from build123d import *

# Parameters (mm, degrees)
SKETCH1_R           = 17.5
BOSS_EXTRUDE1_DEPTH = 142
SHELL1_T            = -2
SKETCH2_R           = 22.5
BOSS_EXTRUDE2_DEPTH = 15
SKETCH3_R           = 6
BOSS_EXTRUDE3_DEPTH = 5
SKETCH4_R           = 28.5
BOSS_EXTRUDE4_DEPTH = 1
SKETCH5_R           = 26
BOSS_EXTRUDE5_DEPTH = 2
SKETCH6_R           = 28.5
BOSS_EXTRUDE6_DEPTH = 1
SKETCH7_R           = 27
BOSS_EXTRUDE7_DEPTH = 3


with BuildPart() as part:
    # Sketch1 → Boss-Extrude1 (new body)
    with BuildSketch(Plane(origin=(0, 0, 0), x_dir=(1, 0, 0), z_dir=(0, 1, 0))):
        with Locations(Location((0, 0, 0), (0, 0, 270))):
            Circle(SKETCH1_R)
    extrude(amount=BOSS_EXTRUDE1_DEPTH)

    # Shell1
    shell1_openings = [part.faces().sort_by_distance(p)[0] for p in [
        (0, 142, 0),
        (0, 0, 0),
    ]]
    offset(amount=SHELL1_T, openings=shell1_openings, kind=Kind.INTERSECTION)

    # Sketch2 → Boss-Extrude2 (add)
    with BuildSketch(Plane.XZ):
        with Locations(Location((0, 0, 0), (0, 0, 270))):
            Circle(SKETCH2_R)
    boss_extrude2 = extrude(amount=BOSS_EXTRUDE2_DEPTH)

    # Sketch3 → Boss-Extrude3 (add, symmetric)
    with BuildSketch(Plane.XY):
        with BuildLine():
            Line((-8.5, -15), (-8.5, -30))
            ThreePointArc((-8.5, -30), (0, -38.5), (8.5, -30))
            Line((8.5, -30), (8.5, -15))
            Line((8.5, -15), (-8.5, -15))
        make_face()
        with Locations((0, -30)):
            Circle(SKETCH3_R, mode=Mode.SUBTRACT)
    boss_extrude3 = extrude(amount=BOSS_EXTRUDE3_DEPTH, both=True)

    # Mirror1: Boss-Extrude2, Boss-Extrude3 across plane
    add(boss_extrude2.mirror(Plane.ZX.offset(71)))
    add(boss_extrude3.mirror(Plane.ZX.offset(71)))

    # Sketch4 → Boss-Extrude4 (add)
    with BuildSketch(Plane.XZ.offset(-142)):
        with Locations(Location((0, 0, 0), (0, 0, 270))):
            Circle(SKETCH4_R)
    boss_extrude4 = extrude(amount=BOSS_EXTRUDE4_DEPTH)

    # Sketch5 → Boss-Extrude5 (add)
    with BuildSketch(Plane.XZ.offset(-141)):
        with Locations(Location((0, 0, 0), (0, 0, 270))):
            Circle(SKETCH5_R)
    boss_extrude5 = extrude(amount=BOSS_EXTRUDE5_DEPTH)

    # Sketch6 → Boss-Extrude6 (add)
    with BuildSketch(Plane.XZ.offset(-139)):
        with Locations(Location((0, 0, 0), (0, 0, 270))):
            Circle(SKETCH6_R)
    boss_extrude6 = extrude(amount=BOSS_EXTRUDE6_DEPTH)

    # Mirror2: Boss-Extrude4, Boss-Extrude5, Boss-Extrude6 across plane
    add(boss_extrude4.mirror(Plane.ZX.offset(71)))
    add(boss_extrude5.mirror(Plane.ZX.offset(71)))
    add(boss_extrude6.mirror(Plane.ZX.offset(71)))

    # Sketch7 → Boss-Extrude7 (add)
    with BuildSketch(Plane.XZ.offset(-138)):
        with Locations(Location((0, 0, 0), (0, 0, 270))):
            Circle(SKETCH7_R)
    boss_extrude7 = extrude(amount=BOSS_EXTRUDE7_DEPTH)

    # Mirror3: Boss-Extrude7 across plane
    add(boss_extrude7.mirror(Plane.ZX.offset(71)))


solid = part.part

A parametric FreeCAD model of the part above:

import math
import FreeCAD as App
import Part
import Sketcher
from FreeCAD import Vector


def faces_at(feature, points):
    """Names of the faces that lie closest to the given points."""
    faces = feature.Shape.Faces
    near = lambda p: min(range(len(faces)), key=lambda i: faces[i].distToShape(Part.Vertex(*p))[0])
    return sorted({f"Face{near(p) + 1}" for p in points})

doc = App.newDocument("Part")
body = doc.addObject("PartDesign::Body", "Body")

# Sketch on XZ plane
sketch1 = doc.addObject("Sketcher::SketchObject", "Sketch")
body.addObject(sketch1)
sketch1.AttachmentSupport = (doc.XZ_Plane, [""])
sketch1.MapMode = "FlatFace"
sketch1.addGeometry(Part.Circle(Vector(0, 0, 0), Vector(0, 0, 1), 18), False)
sketch1.addConstraint([
    Sketcher.Constraint("Coincident", 0, 3, -1, 1),
    Sketcher.Constraint("Diameter", 0, 35.0),
])
pad1 = doc.addObject("PartDesign::Pad", "Pad")
body.addObject(pad1)
pad1.Profile = sketch1
pad1.Length = 142
pad1.Reversed = True
doc.recompute()

thickness = doc.addObject("PartDesign::Thickness", "Thickness")
body.addObject(thickness)
thickness.Base = (pad1, faces_at(pad1, [(0, 142, 0), (0, 0, 0)]))
thickness.Value = 2
thickness.Reversed = True
thickness.Join = "Intersection"

# Sketch on XZ plane
sketch2 = doc.addObject("Sketcher::SketchObject", "Sketch001")
body.addObject(sketch2)
sketch2.AttachmentSupport = (doc.XZ_Plane, [""])
sketch2.MapMode = "FlatFace"
sketch2.addGeometry(Part.Circle(Vector(0, 0, 0), Vector(0, 0, 1), 22), False)
sketch2.addConstraint([
    Sketcher.Constraint("Coincident", 0, 3, -1, 1),
    Sketcher.Constraint("Diameter", 0, 45.0),
])
pad2 = doc.addObject("PartDesign::Pad", "Pad001")
body.addObject(pad2)
pad2.Profile = sketch2
pad2.Length = 15

# Sketch on XY plane
sketch3 = doc.addObject("Sketcher::SketchObject", "Sketch002")
body.addObject(sketch3)
sketch3.AttachmentSupport = (doc.XY_Plane, [""])
sketch3.MapMode = "FlatFace"
sketch3.addGeometry([
    Part.LineSegment(Vector(-8, -15, 0), Vector(-8, -30, 0)),  # 0
    Part.ArcOfCircle(Part.Circle(Vector(0, -30, 0), Vector(0, 0, 1), 8), math.radians(180), math.radians(360)),  # 1
    Part.LineSegment(Vector(8, -30, 0), Vector(8, -15, 0)),  # 2
    Part.LineSegment(Vector(8, -15, 0), Vector(-8, -15, 0)),  # 3
    Part.Circle(Vector(0, -30, 0), Vector(0, 0, 1), 6),  # 4
], False)
sketch3.addConstraint([
    Sketcher.Constraint("Tangent", 0, 2, 1, 1),
    Sketcher.Constraint("Tangent", 1, 2, 2, 1),
    Sketcher.Constraint("Coincident", 2, 2, 3, 1),
    Sketcher.Constraint("Coincident", 3, 2, 0, 1),
    Sketcher.Constraint("Vertical", 0),
    Sketcher.Constraint("Vertical", 2),
    Sketcher.Constraint("Horizontal", 3),
    Sketcher.Constraint("Coincident", 4, 3, 1, 3),
    Sketcher.Constraint("PointOnObject", 1, 3, -2),
    Sketcher.Constraint("Diameter", 4, 12.0),
    Sketcher.Constraint("Radius", 1, 8.5),
    Sketcher.Constraint("DistanceY", 0, 2, 0, 1, 15.0),
    Sketcher.Constraint("DistanceY", 1, 3, -1, 1, 30.0),
])
pad3 = doc.addObject("PartDesign::Pad", "Pad002")
body.addObject(pad3)
pad3.Profile = sketch3
pad3.Length = 10
pad3.Midplane = True
doc.recompute()

datumplane = doc.addObject("PartDesign::Plane", "DatumPlane")
body.addObject(datumplane)
datumplane.AttachmentSupport = (doc.XZ_Plane, [""])
datumplane.MapMode = "FlatFace"
datumplane.AttachmentOffset = App.Placement(Vector(0, 0, -71), App.Rotation())
mirrored = doc.addObject("PartDesign::Mirrored", "Mirrored")
body.addObject(mirrored)
mirrored.Originals = [pad2, pad3]
mirrored.MirrorPlane = (datumplane, [""])
body.Tip = mirrored

# Sketch on XZ plane
sketch4 = doc.addObject("Sketcher::SketchObject", "Sketch003")
body.addObject(sketch4)
sketch4.AttachmentSupport = (doc.XZ_Plane, [""])
sketch4.MapMode = "FlatFace"
sketch4.AttachmentOffset = App.Placement(Vector(0, 0, -142), App.Rotation())
sketch4.addGeometry(Part.Circle(Vector(0, 0, 0), Vector(0, 0, 1), 28), False)
sketch4.addConstraint([
    Sketcher.Constraint("Coincident", 0, 3, -1, 1),
    Sketcher.Constraint("Diameter", 0, 57.0),
])
pad4 = doc.addObject("PartDesign::Pad", "Pad003")
body.addObject(pad4)
pad4.Profile = sketch4
pad4.Length = 1

# Sketch on XZ plane
sketch5 = doc.addObject("Sketcher::SketchObject", "Sketch004")
body.addObject(sketch5)
sketch5.AttachmentSupport = (doc.XZ_Plane, [""])
sketch5.MapMode = "FlatFace"
sketch5.AttachmentOffset = App.Placement(Vector(0, 0, -141), App.Rotation())
sketch5.addGeometry(Part.Circle(Vector(0, 0, 0), Vector(0, 0, 1), 26), False)
sketch5.addConstraint([
    Sketcher.Constraint("Coincident", 0, 3, -1, 1),
    Sketcher.Constraint("Diameter", 0, 52.0),
])
pad5 = doc.addObject("PartDesign::Pad", "Pad004")
body.addObject(pad5)
pad5.Profile = sketch5
pad5.Length = 2

# Sketch on XZ plane
sketch6 = doc.addObject("Sketcher::SketchObject", "Sketch005")
body.addObject(sketch6)
sketch6.AttachmentSupport = (doc.XZ_Plane, [""])
sketch6.MapMode = "FlatFace"
sketch6.AttachmentOffset = App.Placement(Vector(0, 0, -139), App.Rotation())
sketch6.addGeometry(Part.Circle(Vector(0, 0, 0), Vector(0, 0, 1), 28), False)
sketch6.addConstraint([
    Sketcher.Constraint("Coincident", 0, 3, -1, 1),
    Sketcher.Constraint("Diameter", 0, 57.0),
])
pad6 = doc.addObject("PartDesign::Pad", "Pad005")
body.addObject(pad6)
pad6.Profile = sketch6
pad6.Length = 1
doc.recompute()

datumplane2 = doc.addObject("PartDesign::Plane", "DatumPlane001")
body.addObject(datumplane2)
datumplane2.AttachmentSupport = (doc.XZ_Plane, [""])
datumplane2.MapMode = "FlatFace"
datumplane2.AttachmentOffset = App.Placement(Vector(0, 0, -71), App.Rotation())
mirrored2 = doc.addObject("PartDesign::Mirrored", "Mirrored001")
body.addObject(mirrored2)
mirrored2.Originals = [pad4, pad5, pad6]
mirrored2.MirrorPlane = (datumplane2, [""])
body.Tip = mirrored2

# Sketch on XZ plane
sketch7 = doc.addObject("Sketcher::SketchObject", "Sketch006")
body.addObject(sketch7)
sketch7.AttachmentSupport = (doc.XZ_Plane, [""])
sketch7.MapMode = "FlatFace"
sketch7.AttachmentOffset = App.Placement(Vector(0, 0, -138), App.Rotation())
sketch7.addGeometry(Part.Circle(Vector(0, 0, 0), Vector(0, 0, 1), 27), False)
sketch7.addConstraint([
    Sketcher.Constraint("Coincident", 0, 3, -1, 1),
    Sketcher.Constraint("Diameter", 0, 54.0),
])
pad7 = doc.addObject("PartDesign::Pad", "Pad006")
body.addObject(pad7)
pad7.Profile = sketch7
pad7.Length = 3
doc.recompute()

datumplane3 = doc.addObject("PartDesign::Plane", "DatumPlane002")
body.addObject(datumplane3)
datumplane3.AttachmentSupport = (doc.XZ_Plane, [""])
datumplane3.MapMode = "FlatFace"
datumplane3.AttachmentOffset = App.Placement(Vector(0, 0, -71), App.Rotation())
mirrored3 = doc.addObject("PartDesign::Mirrored", "Mirrored002")
body.addObject(mirrored3)
mirrored3.Originals = [pad7]
mirrored3.MirrorPlane = (datumplane3, [""])
body.Tip = mirrored3

doc.recompute()
